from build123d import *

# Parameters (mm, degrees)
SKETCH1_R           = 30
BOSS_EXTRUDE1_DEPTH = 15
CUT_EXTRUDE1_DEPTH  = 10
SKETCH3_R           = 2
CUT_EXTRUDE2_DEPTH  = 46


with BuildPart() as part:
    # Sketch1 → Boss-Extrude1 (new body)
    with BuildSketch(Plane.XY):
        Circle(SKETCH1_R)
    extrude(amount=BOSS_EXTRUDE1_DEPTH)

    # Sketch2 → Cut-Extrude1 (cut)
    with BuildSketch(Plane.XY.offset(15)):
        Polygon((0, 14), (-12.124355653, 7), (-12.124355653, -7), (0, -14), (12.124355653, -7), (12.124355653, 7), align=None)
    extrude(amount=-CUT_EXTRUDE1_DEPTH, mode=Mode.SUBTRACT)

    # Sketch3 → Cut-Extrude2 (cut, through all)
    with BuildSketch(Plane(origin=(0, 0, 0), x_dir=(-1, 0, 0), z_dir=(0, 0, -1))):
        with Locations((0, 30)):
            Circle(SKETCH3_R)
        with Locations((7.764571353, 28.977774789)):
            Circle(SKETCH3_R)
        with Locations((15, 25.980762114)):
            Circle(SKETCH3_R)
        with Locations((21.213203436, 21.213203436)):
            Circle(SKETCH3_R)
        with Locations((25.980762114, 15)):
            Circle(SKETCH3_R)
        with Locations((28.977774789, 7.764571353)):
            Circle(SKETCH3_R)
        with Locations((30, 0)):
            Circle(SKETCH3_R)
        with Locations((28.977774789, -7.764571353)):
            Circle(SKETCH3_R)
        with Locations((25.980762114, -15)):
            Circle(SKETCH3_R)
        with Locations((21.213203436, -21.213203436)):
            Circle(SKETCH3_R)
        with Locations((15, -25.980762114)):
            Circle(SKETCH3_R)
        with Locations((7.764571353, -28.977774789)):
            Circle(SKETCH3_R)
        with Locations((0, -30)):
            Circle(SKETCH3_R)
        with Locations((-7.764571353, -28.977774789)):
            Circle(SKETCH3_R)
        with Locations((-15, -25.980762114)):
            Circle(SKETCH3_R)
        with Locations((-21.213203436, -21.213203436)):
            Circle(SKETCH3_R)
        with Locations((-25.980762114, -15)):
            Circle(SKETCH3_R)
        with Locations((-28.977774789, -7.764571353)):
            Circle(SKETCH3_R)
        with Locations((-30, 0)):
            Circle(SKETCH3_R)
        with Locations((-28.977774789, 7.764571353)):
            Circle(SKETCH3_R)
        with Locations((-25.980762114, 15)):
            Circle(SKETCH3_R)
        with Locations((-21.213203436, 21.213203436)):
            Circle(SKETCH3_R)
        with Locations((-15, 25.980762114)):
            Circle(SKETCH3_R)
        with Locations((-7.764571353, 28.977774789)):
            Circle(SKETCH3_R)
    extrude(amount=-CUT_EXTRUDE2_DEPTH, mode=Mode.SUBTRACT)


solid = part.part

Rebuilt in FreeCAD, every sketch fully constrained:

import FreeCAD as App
import Part
import Sketcher
from FreeCAD import Vector
Q = App.Units.Quantity


def add_polygon(sketch, points):
    """Adds a closed chain of lines whose ends are joined by coincident constraints."""
    first, n = sketch.GeometryCount, len(points)
    for a, b in zip(points, points[1:] + points[:1]):
        sketch.addGeometry(Part.LineSegment(App.Vector(*a, 0), App.Vector(*b, 0)), False)
    for i in range(n):
        sketch.addConstraint(Sketcher.Constraint("Coincident", first + i, 2, first + (i + 1) % n, 1))

doc = App.newDocument("Part")
body = doc.addObject("PartDesign::Body", "Body")

sketch1 = doc.addObject("Sketcher::SketchObject", "Sketch")
body.addObject(sketch1)
sketch1.AttachmentSupport = (doc.XY_Plane, [""])
sketch1.MapMode = "FlatFace"
sketch1.addGeometry(Part.Circle(Vector(0, 0, 0), Vector(0, 0, 1), 30), False)
sketch1.addConstraint([
    Sketcher.Constraint("Coincident", 0, 3, -1, 1),
    Sketcher.Constraint("Diameter", 0, Q("60 mm")),
])
pad1 = doc.addObject("PartDesign::Pad", "Pad")
body.addObject(pad1)
pad1.Profile = sketch1
pad1.Length = 15

sketch2 = doc.addObject("Sketcher::SketchObject", "Sketch001")
body.addObject(sketch2)
sketch2.AttachmentSupport = (doc.XY_Plane, [""])
sketch2.MapMode = "FlatFace"
sketch2.AttachmentOffset = App.Placement(Vector(0, 0, 15), App.Rotation())
add_polygon(sketch2, [(0, 14), (-12, 7), (-12, -7), (0, -14), (12, -7), (12, 7)])
sketch2.addConstraint([
    Sketcher.Constraint("Vertical", 1),
    Sketcher.Constraint("Vertical", 4),
    Sketcher.Constraint("Symmetric", 0, 2, 3, 2, -1, 1),
    Sketcher.Constraint("Symmetric", 2, 2, 5, 2, -1, 1),
    Sketcher.Constraint("PointOnObject", 2, 2, -2),
    Sketcher.Constraint("Parallel", 2, 5),
    Sketcher.Constraint("Horizontal", 1, 2, 3, 2),
    Sketcher.Constraint("DistanceY", 1, 2, 1, 1, Q("14 mm")),
    Sketcher.Constraint("Angle", 0, Q("-150 deg")),
    Sketcher.Constraint("Distance", 0, Q("14 mm")),
])
pocket1 = doc.addObject("PartDesign::Pocket", "Pocket")
body.addObject(pocket1)
pocket1.Profile = sketch2
pocket1.Length = 10

sketch3 = doc.addObject("Sketcher::SketchObject", "Sketch002")
body.addObject(sketch3)
sketch3.AttachmentSupport = (doc.XY_Plane, [""])
sketch3.MapMode = "FlatFace"
sketch3.addGeometry([
    Part.Circle(Vector(0, 30, 0), Vector(0, 0, 1), 2),
    Part.Circle(Vector(-7.8, 29, 0), Vector(0, 0, 1), 2),
    Part.Circle(Vector(-15, 26, 0), Vector(0, 0, 1), 2),
    Part.Circle(Vector(-21.2, 21.2, 0), Vector(0, 0, 1), 2),
    Part.Circle(Vector(-26, 15, 0), Vector(0, 0, 1), 2),
    Part.Circle(Vector(-29, 7.8, 0), Vector(0, 0, 1), 2),
    Part.Circle(Vector(-30, 0, 0), Vector(0, 0, 1), 2),
    Part.Circle(Vector(-29, -7.8, 0), Vector(0, 0, 1), 2),
    Part.Circle(Vector(-26, -15, 0), Vector(0, 0, 1), 2),
    Part.Circle(Vector(-21.2, -21.2, 0), Vector(0, 0, 1), 2),
    Part.Circle(Vector(-15, -26, 0), Vector(0, 0, 1), 2),
    Part.Circle(Vector(-7.8, -29, 0), Vector(0, 0, 1), 2),
    Part.Circle(Vector(0, -30, 0), Vector(0, 0, 1), 2),
    Part.Circle(Vector(7.8, -29, 0), Vector(0, 0, 1), 2),
    Part.Circle(Vector(15, -26, 0), Vector(0, 0, 1), 2),
    Part.Circle(Vector(21.2, -21.2, 0), Vector(0, 0, 1), 2),
    Part.Circle(Vector(26, -15, 0), Vector(0, 0, 1), 2),
    Part.Circle(Vector(29, -7.8, 0), Vector(0, 0, 1), 2),
    Part.Circle(Vector(30, 0, 0), Vector(0, 0, 1), 2),
    Part.Circle(Vector(29, 7.8, 0), Vector(0, 0, 1), 2),
    Part.Circle(Vector(26, 15, 0), Vector(0, 0, 1), 2),
    Part.Circle(Vector(21.2, 21.2, 0), Vector(0, 0, 1), 2),
    Part.Circle(Vector(15, 26, 0), Vector(0, 0, 1), 2),
    Part.Circle(Vector(7.8, 29, 0), Vector(0, 0, 1), 2),
], False)
sketch3.addConstraint([
    Sketcher.Constraint("Equal", 0, 1),
    Sketcher.Constraint("Equal", 1, 2),
    Sketcher.Constraint("Equal", 2, 3),
    Sketcher.Constraint("Equal", 3, 4),
    Sketcher.Constraint("Equal", 4, 5),
    Sketcher.Constraint("Equal", 5, 6),
    Sketcher.Constraint("Equal", 6, 7),
    Sketcher.Constraint("Equal", 7, 8),
    Sketcher.Constraint("Equal", 8, 9),
    Sketcher.Constraint("Equal", 9, 10),
    Sketcher.Constraint("Equal", 10, 11),
    Sketcher.Constraint("Equal", 11, 12),
    Sketcher.Constraint("Equal", 12, 13),
    Sketcher.Constraint("Equal", 13, 14),
    Sketcher.Constraint("Equal", 14, 15),
    Sketcher.Constraint("Equal", 15, 16),
    Sketcher.Constraint("Equal", 16, 17),
    Sketcher.Constraint("Equal", 17, 18),
    Sketcher.Constraint("Equal", 18, 19),
    Sketcher.Constraint("Equal", 19, 20),
    Sketcher.Constraint("Equal", 20, 21),
    Sketcher.Constraint("Equal", 21, 22),
    Sketcher.Constraint("Equal", 22, 23),
    Sketcher.Constraint("Symmetric", 0, 3, 12, 3, -1, 1),
    Sketcher.Constraint("Symmetric", 1, 3, 13, 3, -1, 1),
    Sketcher.Constraint("Symmetric", 2, 3, 14, 3, -1, 1),
    Sketcher.Constraint("Symmetric", 3, 3, 15, 3, -1, 1),
    Sketcher.Constraint("Symmetric", 4, 3, 16, 3, -1, 1),
    Sketcher.Constraint("Symmetric", 5, 3, 17, 3, -1, 1),
    Sketcher.Constraint("Symmetric", 6, 3, 18, 3, -1, 1),
    Sketcher.Constraint("Symmetric", 7, 3, 19, 3, -1, 1),
    Sketcher.Constraint("Symmetric", 8, 3, 20, 3, -1, 1),
    Sketcher.Constraint("Symmetric", 9, 3, 21, 3, -1, 1),
    Sketcher.Constraint("Symmetric", 10, 3, 22, 3, -1, 1),
    Sketcher.Constraint("Symmetric", 11, 3, 23, 3, -1, 1),
    Sketcher.Constraint("Symmetric", 11, 3, 13, 3, -2),
    Sketcher.Constraint("Symmetric", 10, 3, 14, 3, -2),
    Sketcher.Constraint("Symmetric", 9, 3, 15, 3, -2),
    Sketcher.Constraint("Symmetric", 8, 3, 16, 3, -2),
    Sketcher.Constraint("Symmetric", 7, 3, 17, 3, -2),
    Sketcher.Constraint("PointOnObject", 0, 3, -2),
    Sketcher.Constraint("PointOnObject", 6, 3, -1),
    Sketcher.Constraint("Diameter", 0, Q("4 mm")),
    Sketcher.Constraint("DistanceY", -1, 1, 0, 3, Q("30 mm")),
    Sketcher.Constraint("DistanceX", 2, 3, -1, 1, Q("15 mm")),
    Sketcher.Constraint("DistanceY", -1, 1, 4, 3, Q("15 mm")),
    Sketcher.Constraint("DistanceX", 6, 3, -1, 1, Q("30 mm")),
    Sketcher.Constraint("DistanceX", 1, 3, -1, 1, Q("7.764571 mm")),
    Sketcher.Constraint("DistanceY", -1, 1, 5, 3, Q("7.764571 mm")),
    Sketcher.Constraint("DistanceY", 3, 3, 2, 3, Q("4.767559 mm")),
    Sketcher.Constraint("DistanceY", 3, 3, 1, 3, Q("7.764571 mm")),
    Sketcher.Constraint("DistanceX", 4, 3, 3, 3, Q("4.767559 mm")),
    Sketcher.Constraint("DistanceX", 4, 3, 1, 3, Q("18.216191 mm")),
    Sketcher.Constraint("DistanceX", 5, 3, 3, 3, Q("7.764571 mm")),
    Sketcher.Constraint("DistanceY", 5, 3, 2, 3, Q("18.216191 mm")),
])
pocket2 = doc.addObject("PartDesign::Pocket", "Pocket001")
body.addObject(pocket2)
pocket2.Profile = sketch3
pocket2.Type = "ThroughAll"
pocket2.Reversed = True

doc.recompute()
